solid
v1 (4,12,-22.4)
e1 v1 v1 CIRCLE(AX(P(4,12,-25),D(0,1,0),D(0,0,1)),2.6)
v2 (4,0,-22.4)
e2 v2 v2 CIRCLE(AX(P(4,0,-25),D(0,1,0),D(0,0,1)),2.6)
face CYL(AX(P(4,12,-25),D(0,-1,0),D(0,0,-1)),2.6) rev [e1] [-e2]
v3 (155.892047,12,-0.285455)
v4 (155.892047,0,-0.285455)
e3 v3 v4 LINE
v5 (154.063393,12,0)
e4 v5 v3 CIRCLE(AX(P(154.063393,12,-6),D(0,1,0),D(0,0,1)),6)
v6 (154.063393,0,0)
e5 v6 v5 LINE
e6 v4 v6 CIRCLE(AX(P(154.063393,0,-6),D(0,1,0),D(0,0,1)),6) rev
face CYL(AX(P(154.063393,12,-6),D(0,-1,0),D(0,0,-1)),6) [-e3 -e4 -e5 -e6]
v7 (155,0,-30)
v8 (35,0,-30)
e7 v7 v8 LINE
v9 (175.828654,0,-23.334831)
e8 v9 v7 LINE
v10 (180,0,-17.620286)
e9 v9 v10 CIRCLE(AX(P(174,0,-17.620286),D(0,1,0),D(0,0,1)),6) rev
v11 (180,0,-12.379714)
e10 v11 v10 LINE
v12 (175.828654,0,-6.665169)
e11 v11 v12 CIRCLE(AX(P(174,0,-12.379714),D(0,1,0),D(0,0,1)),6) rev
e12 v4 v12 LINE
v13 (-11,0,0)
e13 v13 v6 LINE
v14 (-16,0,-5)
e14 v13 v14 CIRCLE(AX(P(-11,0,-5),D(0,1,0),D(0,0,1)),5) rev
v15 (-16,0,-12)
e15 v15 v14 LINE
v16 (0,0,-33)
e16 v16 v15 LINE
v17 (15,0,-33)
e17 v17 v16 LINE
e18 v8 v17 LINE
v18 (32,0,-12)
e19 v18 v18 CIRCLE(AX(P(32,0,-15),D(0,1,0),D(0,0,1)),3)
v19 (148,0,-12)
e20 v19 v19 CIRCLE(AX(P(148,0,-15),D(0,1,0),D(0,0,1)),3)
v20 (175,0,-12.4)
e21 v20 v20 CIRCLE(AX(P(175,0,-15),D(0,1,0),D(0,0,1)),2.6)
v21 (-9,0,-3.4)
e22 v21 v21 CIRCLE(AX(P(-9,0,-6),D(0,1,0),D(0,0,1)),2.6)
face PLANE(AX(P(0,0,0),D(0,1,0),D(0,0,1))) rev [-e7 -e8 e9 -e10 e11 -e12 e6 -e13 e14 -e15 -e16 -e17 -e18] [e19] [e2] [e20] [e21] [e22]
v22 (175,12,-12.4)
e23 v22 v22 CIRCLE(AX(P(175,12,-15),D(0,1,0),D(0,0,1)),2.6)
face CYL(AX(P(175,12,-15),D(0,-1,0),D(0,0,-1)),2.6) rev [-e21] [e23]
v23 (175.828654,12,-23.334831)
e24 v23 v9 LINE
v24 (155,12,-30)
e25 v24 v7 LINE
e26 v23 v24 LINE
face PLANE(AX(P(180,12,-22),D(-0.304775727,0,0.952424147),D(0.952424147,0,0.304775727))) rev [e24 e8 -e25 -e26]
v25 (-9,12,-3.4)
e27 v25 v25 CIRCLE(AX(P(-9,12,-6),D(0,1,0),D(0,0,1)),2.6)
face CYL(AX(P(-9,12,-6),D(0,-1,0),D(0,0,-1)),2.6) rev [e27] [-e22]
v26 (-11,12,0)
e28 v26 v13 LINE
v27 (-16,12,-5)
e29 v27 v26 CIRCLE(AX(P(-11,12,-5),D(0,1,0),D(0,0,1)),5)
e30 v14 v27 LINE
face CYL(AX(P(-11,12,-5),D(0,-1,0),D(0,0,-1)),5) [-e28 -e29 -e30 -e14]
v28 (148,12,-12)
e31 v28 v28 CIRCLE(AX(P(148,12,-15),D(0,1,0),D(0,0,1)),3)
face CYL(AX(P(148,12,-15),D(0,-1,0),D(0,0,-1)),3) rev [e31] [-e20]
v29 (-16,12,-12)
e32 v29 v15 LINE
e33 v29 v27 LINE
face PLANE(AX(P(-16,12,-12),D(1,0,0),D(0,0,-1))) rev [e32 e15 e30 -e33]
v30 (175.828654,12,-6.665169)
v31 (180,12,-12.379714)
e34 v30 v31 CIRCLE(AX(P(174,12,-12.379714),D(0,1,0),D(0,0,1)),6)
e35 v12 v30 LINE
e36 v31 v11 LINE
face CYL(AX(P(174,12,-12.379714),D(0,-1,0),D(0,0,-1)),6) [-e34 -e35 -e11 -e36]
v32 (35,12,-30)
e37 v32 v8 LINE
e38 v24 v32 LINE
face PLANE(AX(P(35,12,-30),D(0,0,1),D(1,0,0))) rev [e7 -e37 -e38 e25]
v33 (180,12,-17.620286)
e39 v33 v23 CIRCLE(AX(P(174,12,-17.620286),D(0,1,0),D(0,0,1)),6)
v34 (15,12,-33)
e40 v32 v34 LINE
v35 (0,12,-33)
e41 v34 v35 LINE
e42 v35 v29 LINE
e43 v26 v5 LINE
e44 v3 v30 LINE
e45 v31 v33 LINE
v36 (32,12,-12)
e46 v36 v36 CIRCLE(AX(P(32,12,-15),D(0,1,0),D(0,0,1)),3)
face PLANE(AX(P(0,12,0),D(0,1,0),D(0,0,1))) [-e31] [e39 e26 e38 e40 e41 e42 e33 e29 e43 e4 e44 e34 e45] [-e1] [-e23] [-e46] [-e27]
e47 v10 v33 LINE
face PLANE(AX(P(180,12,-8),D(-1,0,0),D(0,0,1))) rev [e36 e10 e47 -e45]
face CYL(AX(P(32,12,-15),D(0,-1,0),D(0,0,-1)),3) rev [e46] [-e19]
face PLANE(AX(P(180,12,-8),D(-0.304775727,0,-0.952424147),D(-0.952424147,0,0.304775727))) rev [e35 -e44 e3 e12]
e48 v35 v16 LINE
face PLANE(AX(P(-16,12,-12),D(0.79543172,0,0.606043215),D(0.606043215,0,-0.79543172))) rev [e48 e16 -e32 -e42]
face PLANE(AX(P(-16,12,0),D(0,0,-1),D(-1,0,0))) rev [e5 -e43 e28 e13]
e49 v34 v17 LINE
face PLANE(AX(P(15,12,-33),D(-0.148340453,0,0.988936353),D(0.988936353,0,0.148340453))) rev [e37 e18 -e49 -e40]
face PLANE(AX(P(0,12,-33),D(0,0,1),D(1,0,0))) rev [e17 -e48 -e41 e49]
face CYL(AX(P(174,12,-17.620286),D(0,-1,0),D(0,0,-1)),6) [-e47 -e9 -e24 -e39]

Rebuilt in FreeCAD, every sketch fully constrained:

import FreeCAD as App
import Part
import Sketcher
from FreeCAD import Vector


def edges_at(feature, points):
    """Names of the edges that pass closest to the given points."""
    edges = feature.Shape.Edges
    near = lambda p: min(range(len(edges)), key=lambda i: edges[i].distToShape(Part.Vertex(*p))[0])
    return sorted({f"Edge{near(p) + 1}" for p in points})

doc = App.newDocument("Part")
body = doc.addObject("PartDesign::Body", "Body")

# Sketch on XZ plane
sketch1 = doc.addObject("Sketcher::SketchObject", "Sketch")
body.addObject(sketch1)
sketch1.AttachmentSupport = (doc.XZ_Plane, [""])
sketch1.MapMode = "FlatFace"
sketch1.addGeometry(Part.LineSegment(Vector(180, -22, 0), Vector(155, -30, 0)), False)
sketch1.addGeometry(Part.LineSegment(Vector(155, -30, 0), Vector(35, -30, 0)), False)
sketch1.addGeometry(Part.LineSegment(Vector(35, -30, 0), Vector(15, -33, 0)), False)
sketch1.addGeometry(Part.LineSegment(Vector(15, -33, 0), Vector(0, -33, 0)), False)
sketch1.addGeometry(Part.LineSegment(Vector(0, -33, 0), Vector(-16, -12, 0)), False)
sketch1.addGeometry(Part.LineSegment(Vector(-16, -12, 0), Vector(-16, 0, 0)), False)
sketch1.addGeometry(Part.LineSegment(Vector(-16, 0, 0), Vector(155, 0, 0)), False)
sketch1.addGeometry(Part.LineSegment(Vector(155, 0, 0), Vector(180, -8, 0)), False)
sketch1.addGeometry(Part.LineSegment(Vector(180, -8, 0), Vector(180, -22, 0)), False)
sketch1.addGeometry(Part.Circle(Vector(-9, -6, 0), Vector(0, 0, 1), 2.6), False)
sketch1.addGeometry(Part.Circle(Vector(32, -15, 0), Vector(0, 0, 1), 3), False)
sketch1.addGeometry(Part.Circle(Vector(148, -15, 0), Vector(0, 0, 1), 3), False)
sketch1.addGeometry(Part.Circle(Vector(175, -15, 0), Vector(0, 0, 1), 2.6), False)
sketch1.addGeometry(Part.Circle(Vector(4, -25, 0), Vector(0, 0, 1), 2.6), False)
sketch1.addConstraint(Sketcher.Constraint("Coincident", 0, 2, 1, 1))
sketch1.addConstraint(Sketcher.Constraint("Coincident", 1, 2, 2, 1))
sketch1.addConstraint(Sketcher.Constraint("Coincident", 2, 2, 3, 1))
sketch1.addConstraint(Sketcher.Constraint("Coincident", 3, 2, 4, 1))
sketch1.addConstraint(Sketcher.Constraint("Coincident", 4, 2, 5, 1))
sketch1.addConstraint(Sketcher.Constraint("Coincident", 5, 2, 6, 1))
sketch1.addConstraint(Sketcher.Constraint("Coincident", 6, 2, 7, 1))
sketch1.addConstraint(Sketcher.Constraint("Coincident", 7, 2, 8, 1))
sketch1.addConstraint(Sketcher.Constraint("Coincident", 8, 2, 0, 1))
sketch1.addConstraint(Sketcher.Constraint("Horizontal", 1))
sketch1.addConstraint(Sketcher.Constraint("Horizontal", 3))
sketch1.addConstraint(Sketcher.Constraint("Vertical", 5))
sketch1.addConstraint(Sketcher.Constraint("Horizontal", 6))
sketch1.addConstraint(Sketcher.Constraint("Vertical", 8))
sketch1.addConstraint(Sketcher.Constraint("Equal", 10, 11))
sketch1.addConstraint(Sketcher.Constraint("Equal", 9, 12))
sketch1.addConstraint(Sketcher.Constraint("Equal", 12, 13))
sketch1.addConstraint(Sketcher.Constraint("PointOnObject", 3, 2, -2))
sketch1.addConstraint(Sketcher.Constraint("PointOnObject", 5, 2, -1))
sketch1.addConstraint(Sketcher.Constraint("Horizontal", 10, 3, 11, 3))
sketch1.addConstraint(Sketcher.Constraint("Horizontal", 11, 3, 12, 3))
sketch1.addConstraint(Sketcher.Constraint("Vertical", 0, 2, 6, 2))
sketch1.addConstraint(Sketcher.Constraint("Equal", 0, 7))
sketch1.addConstraint(Sketcher.Constraint("Diameter", 10, 6.0))
sketch1.addConstraint(Sketcher.Constraint("Diameter", 9, 5.2))
sketch1.addConstraint(Sketcher.Constraint("DistanceX", 1, 2, 1, 1, 120.0))
sketch1.addConstraint(Sketcher.Constraint("DistanceX", 3, 2, 3, 1, 15.0))
sketch1.addConstraint(Sketcher.Constraint("DistanceX", 6, 1, 6, 2, 171.0))
sketch1.addConstraint(Sketcher.Constraint("DistanceY", 5, 1, 5, 2, 12.0))
sketch1.addConstraint(Sketcher.Constraint("DistanceY", 8, 2, 8, 1, 14.0))
sketch1.addConstraint(Sketcher.Constraint("DistanceX", 9, 3, -1, 1, 9.0))
sketch1.addConstraint(Sketcher.Constraint("DistanceY", 9, 3, -1, 1, 6.0))
sketch1.addConstraint(Sketcher.Constraint("DistanceX", -1, 1, 10, 3, 32.0))
sketch1.addConstraint(Sketcher.Constraint("DistanceY", 10, 3, -1, 1, 15.0))
sketch1.addConstraint(Sketcher.Constraint("DistanceX", -1, 1, 11, 3, 148.0))
sketch1.addConstraint(Sketcher.Constraint("DistanceX", -1, 1, 12, 3, 175.0))
sketch1.addConstraint(Sketcher.Constraint("DistanceX", -1, 1, 13, 3, 4.0))
sketch1.addConstraint(Sketcher.Constraint("DistanceY", 13, 3, -1, 1, 25.0))
sketch1.addConstraint(Sketcher.Constraint("DistanceX", -1, 1, 0, 2, 155.0))
sketch1.addConstraint(Sketcher.Constraint("DistanceY", 0, 2, -1, 1, 30.0))
sketch1.addConstraint(Sketcher.Constraint("DistanceY", 2, 2, -1, 1, 33.0))
sketch1.addConstraint(Sketcher.Constraint("DistanceX", -1, 1, 7, 2, 180.0))
pad1 = doc.addObject("PartDesign::Pad", "Pad")
body.addObject(pad1)
pad1.Profile = sketch1
pad1.Length = 12
pad1.Reversed = True
doc.recompute()

fillet = doc.addObject("PartDesign::Fillet", "Fillet")
body.addObject(fillet)
fillet.Base = (pad1, edges_at(pad1, [(-16, 6, 0)]))
fillet.Radius = 5
doc.recompute()

fillet2 = doc.addObject("PartDesign::Fillet", "Fillet001")
body.addObject(fillet2)
fillet2.Base = (fillet, edges_at(fillet, [(180, 6, -22), (180, 6, -8), (155, 6, 0)]))
fillet2.Radius = 6

doc.recompute()
